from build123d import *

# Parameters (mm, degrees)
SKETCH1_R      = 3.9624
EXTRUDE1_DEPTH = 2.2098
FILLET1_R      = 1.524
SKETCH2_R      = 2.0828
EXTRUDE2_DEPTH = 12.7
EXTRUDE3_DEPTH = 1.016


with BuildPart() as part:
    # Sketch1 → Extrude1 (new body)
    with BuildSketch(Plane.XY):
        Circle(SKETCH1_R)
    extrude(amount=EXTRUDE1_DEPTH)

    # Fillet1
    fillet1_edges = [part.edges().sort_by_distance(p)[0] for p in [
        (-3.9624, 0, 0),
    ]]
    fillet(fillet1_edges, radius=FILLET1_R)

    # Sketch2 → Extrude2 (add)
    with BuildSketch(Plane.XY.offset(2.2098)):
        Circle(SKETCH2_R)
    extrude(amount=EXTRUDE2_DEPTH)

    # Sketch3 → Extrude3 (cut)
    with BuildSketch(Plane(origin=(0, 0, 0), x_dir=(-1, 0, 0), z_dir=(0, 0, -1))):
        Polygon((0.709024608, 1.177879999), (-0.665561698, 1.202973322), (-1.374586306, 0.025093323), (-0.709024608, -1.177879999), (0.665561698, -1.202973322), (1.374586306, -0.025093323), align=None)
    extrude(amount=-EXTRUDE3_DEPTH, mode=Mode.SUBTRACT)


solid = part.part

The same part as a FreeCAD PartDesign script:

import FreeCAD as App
import Part
import Sketcher

V = App.Vector
Q = App.Units.Quantity


def edges_at(feature, points):
    """Names of the edges that pass closest to the given points."""
    edges = feature.Shape.Edges
    near = lambda p: min(range(len(edges)), key=lambda i: edges[i].distToShape(Part.Vertex(*p))[0])
    return sorted({f"Edge{near(p) + 1}" for p in points})

doc = App.newDocument("Part")
body = doc.addObject("PartDesign::Body", "Body")

sketch1 = body.newObject("Sketcher::SketchObject", "Sketch")
sketch1.AttachmentSupport = (doc.getObject("XY_Plane"), [""])
sketch1.MapMode = "FlatFace"
sketch1.addGeometry(Part.Circle(V(0, 0, 0), V(0, 0, 1), 4), False)
sketch1.addConstraint([
    Sketcher.Constraint("Coincident", 0, 3, -1, 1),
    Sketcher.Constraint("Diameter", 0, Q("0.312 in")),
])
pad1 = body.newObject("PartDesign::Pad", "Pad")
pad1.Profile = sketch1
pad1.Length = Q("0.087 in")
doc.recompute()

fillet = body.newObject("PartDesign::Fillet", "Fillet")
fillet.Base = (pad1, edges_at(pad1, [(-3.962, 0, 0)]))
fillet.Radius = Q("0.06 in")

sketch2 = body.newObject("Sketcher::SketchObject", "Sketch001")
sketch2.AttachmentSupport = (doc.getObject("XY_Plane"), [""])
sketch2.MapMode = "FlatFace"
sketch2.AttachmentOffset = App.Placement(V(0, 0, 0.087 * 25.4), App.Rotation())
sketch2.addGeometry(Part.Circle(V(0, 0, 0), V(0, 0, 1), 2.1), False)
sketch2.addConstraint([
    Sketcher.Constraint("Coincident", 0, 3, -1, 1),
    Sketcher.Constraint("Diameter", 0, Q("0.164 in")),
])
pad2 = body.newObject("PartDesign::Pad", "Pad001")
pad2.Profile = sketch2
pad2.Length = Q("0.5 in")

sketch3 = body.newObject("Sketcher::SketchObject", "Sketch002")
sketch3.AttachmentSupport = (doc.getObject("XY_Plane"), [""])
sketch3.MapMode = "FlatFace"
sketch3.addGeometry([
    Part.LineSegment(V(-0.7, 1.2, 0), V(0.7, 1.2, 0)),
    Part.LineSegment(V(0.7, 1.2, 0), V(1.4, 0, 0)),
    Part.LineSegment(V(1.4, 0, 0), V(0.7, -1.2, 0)),
    Part.LineSegment(V(0.7, -1.2, 0), V(-0.7, -1.2, 0)),
    Part.LineSegment(V(-0.7, -1.2, 0), V(-1.4, 0, 0)),
    Part.LineSegment(V(-1.4, 0, 0), V(-0.7, 1.2, 0)),
], False)
sketch3.addConstraint([
    Sketcher.Constraint("Coincident", 0, 2, 1, 1),
    Sketcher.Constraint("Coincident", 1, 2, 2, 1),
    Sketcher.Constraint("Coincident", 2, 2, 3, 1),
    Sketcher.Constraint("Coincident", 3, 2, 4, 1),
    Sketcher.Constraint("Coincident", 4, 2, 5, 1),
    Sketcher.Constraint("Coincident", 5, 2, 0, 1),
    Sketcher.Constraint("Symmetric", 0, 2, 3, 2, -1, 1),
    Sketcher.Constraint("Symmetric", 1, 2, 4, 2, -1, 1),
    Sketcher.Constraint("Symmetric", 2, 2, 5, 2, -1, 1),
    Sketcher.Constraint("Equal", 0, 1),
    Sketcher.Constraint("Equal", 1, 2),
    Sketcher.Constraint("DistanceX", -1, 1, 0, 2, Q("0.665562 mm")),
    Sketcher.Constraint("DistanceY", 2, 2, -1, 1, Q("1.17788 mm")),
    Sketcher.Constraint("DistanceY", 1, 2, 0, 2, Q("1.17788 mm")),
    Sketcher.Constraint("DistanceX", 2, 2, 1, 2, Q("0.665562 mm")),
])
pocket1 = body.newObject("PartDesign::Pocket", "Pocket")
pocket1.Profile = sketch3
pocket1.Length = Q("0.04 in")
pocket1.Reversed = True

doc.recompute()
